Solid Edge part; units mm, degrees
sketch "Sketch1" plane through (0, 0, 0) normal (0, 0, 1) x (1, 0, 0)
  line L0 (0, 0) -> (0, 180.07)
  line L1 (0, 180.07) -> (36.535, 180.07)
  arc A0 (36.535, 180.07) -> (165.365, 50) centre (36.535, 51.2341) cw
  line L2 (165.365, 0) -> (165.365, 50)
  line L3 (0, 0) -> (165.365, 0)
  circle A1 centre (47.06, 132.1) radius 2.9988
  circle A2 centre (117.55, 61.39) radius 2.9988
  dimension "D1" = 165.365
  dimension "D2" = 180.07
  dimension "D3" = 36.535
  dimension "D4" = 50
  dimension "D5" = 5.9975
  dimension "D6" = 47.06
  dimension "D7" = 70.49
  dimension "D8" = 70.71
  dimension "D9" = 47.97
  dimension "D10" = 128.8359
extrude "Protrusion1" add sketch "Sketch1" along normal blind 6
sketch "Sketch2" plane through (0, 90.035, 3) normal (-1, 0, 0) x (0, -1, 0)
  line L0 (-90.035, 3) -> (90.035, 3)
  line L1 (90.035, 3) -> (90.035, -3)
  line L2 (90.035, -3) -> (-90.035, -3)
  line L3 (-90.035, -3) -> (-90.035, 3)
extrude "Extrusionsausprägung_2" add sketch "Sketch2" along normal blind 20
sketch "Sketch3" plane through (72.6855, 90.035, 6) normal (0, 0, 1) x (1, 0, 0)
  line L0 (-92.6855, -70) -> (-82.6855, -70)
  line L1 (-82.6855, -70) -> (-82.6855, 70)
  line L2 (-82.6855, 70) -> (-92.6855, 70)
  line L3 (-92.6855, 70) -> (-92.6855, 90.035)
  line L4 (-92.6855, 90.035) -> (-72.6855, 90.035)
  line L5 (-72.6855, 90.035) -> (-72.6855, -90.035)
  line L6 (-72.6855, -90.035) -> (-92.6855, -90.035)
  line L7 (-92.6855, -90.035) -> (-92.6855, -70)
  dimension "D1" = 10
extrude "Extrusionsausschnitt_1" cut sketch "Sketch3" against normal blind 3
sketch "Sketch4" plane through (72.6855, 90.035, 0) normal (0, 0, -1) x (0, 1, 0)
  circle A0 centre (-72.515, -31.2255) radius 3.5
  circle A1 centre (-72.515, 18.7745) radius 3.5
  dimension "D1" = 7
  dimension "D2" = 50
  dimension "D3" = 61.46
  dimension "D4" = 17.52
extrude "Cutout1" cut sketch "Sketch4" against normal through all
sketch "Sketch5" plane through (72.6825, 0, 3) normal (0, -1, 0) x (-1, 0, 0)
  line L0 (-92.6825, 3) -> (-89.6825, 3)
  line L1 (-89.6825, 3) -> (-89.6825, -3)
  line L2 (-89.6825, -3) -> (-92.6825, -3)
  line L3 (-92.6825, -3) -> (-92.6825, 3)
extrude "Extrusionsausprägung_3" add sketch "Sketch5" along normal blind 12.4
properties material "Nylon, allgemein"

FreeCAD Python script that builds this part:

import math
import FreeCAD as App
import Part
import Sketcher

doc = App.newDocument("Part")
body = doc.addObject("PartDesign::Body", "Body")

# Sketch on XY plane
sketch1 = body.newObject("Sketcher::SketchObject", "Sketch")
sketch1.AttachmentSupport = (doc.getObject("XY_Plane"), [""])
sketch1.MapMode = "FlatFace"
sketch1.addGeometry([
    Part.LineSegment(App.Vector(0, 180.07, 0), App.Vector(0, 0, 0)),  # 0
    Part.LineSegment(App.Vector(0, 0, 0), App.Vector(165.365, 0, 0)),  # 1
    Part.LineSegment(App.Vector(165.365, 0, 0), App.Vector(165.365, 50, 0)),  # 2
    Part.ArcOfCircle(Part.Circle(App.Vector(36.535, 51.2341, 0), App.Vector(0, 0, 1), 128.8359), math.radians(-0.548836), math.radians(90)),  # 3
    Part.LineSegment(App.Vector(36.535, 180.07, 0), App.Vector(0, 180.07, 0)),  # 4
    Part.Circle(App.Vector(117.55, 61.39, 0), App.Vector(0, 0, 1), 2.9988),  # 5
    Part.Circle(App.Vector(47.06, 132.1, 0), App.Vector(0, 0, 1), 2.9988),  # 6
], False)
sketch1.addConstraint([
    Sketcher.Constraint("Coincident", 0, 2, 1, 1),
    Sketcher.Constraint("Coincident", 1, 2, 2, 1),
    Sketcher.Constraint("Coincident", 2, 2, 3, 1),
    Sketcher.Constraint("Tangent", 3, 2, 4, 1),
    Sketcher.Constraint("Coincident", 4, 2, 0, 1),
    Sketcher.Constraint("Vertical", 0),
    Sketcher.Constraint("Horizontal", 1),
    Sketcher.Constraint("Vertical", 2),
    Sketcher.Constraint("Horizontal", 4),
    Sketcher.Constraint("Coincident", 0, 2, -1, 1),
    Sketcher.Constraint("Equal", 5, 6),
    Sketcher.Constraint("DistanceX", 1, 1, 1, 2, 165.365),
    Sketcher.Constraint("DistanceY", 2, 1, 2, 2, 50.0),
    Sketcher.Constraint("Radius", 3, 128.836),
    Sketcher.Constraint("Diameter", 5, 5.9976),
    Sketcher.Constraint("DistanceY", 0, 2, 0, 1, 180.07),
    Sketcher.Constraint("DistanceY", -1, 1, 6, 3, 132.1),
    Sketcher.Constraint("DistanceX", -1, 1, 5, 3, 117.55),
    Sketcher.Constraint("DistanceY", -1, 1, 5, 3, 61.39),
    Sketcher.Constraint("DistanceX", -1, 1, 6, 3, 47.06),
])
pad1 = body.newObject("PartDesign::Pad", "Pad")
pad1.Profile = sketch1
pad1.Length = 6

# Sketch on YZ plane
sketch2 = body.newObject("Sketcher::SketchObject", "Sketch001")
sketch2.AttachmentSupport = (doc.getObject("YZ_Plane"), [""])
sketch2.MapMode = "FlatFace"
sketch2.addGeometry([
    Part.LineSegment(App.Vector(0, 6, 0), App.Vector(180.07, 6, 0)),
    Part.LineSegment(App.Vector(180.07, 6, 0), App.Vector(180.07, 0, 0)),
    Part.LineSegment(App.Vector(180.07, 0, 0), App.Vector(0, 0, 0)),
    Part.LineSegment(App.Vector(0, 0, 0), App.Vector(0, 6, 0)),
], False)
sketch2.addConstraint([
    Sketcher.Constraint("Coincident", 0, 2, 1, 1),
    Sketcher.Constraint("Coincident", 1, 2, 2, 1),
    Sketcher.Constraint("Coincident", 2, 2, 3, 1),
    Sketcher.Constraint("Coincident", 3, 2, 0, 1),
    Sketcher.Constraint("Horizontal", 0),
    Sketcher.Constraint("Vertical", 1),
    Sketcher.Constraint("Horizontal", 2),
    Sketcher.Constraint("Vertical", 3),
    Sketcher.Constraint("Coincident", 2, 2, -1, 1),
    Sketcher.Constraint("DistanceY", 1, 2, 1, 1, 6.0),
    Sketcher.Constraint("DistanceX", 0, 1, 0, 2, 180.07),
])
pad2 = body.newObject("PartDesign::Pad", "Pad001")
pad2.Profile = sketch2
pad2.Length = 20
pad2.Reversed = True

# Sketch on XY plane
sketch3 = body.newObject("Sketcher::SketchObject", "Sketch002")
sketch3.AttachmentSupport = (doc.getObject("XY_Plane"), [""])
sketch3.MapMode = "FlatFace"
sketch3.AttachmentOffset = App.Placement(App.Vector(0, 0, 6), App.Rotation())
sketch3.addGeometry([
    Part.LineSegment(App.Vector(-10, 20.035, 0), App.Vector(-20, 20.035, 0)),  # 0
    Part.LineSegment(App.Vector(-20, 20.035, 0), App.Vector(-20, 0, 0)),  # 1
    Part.LineSegment(App.Vector(-20, 0, 0), App.Vector(0, 0, 0)),  # 2
    Part.LineSegment(App.Vector(0, 0, 0), App.Vector(0, 180.07, 0)),  # 3
    Part.LineSegment(App.Vector(0, 180.07, 0), App.Vector(-20, 180.07, 0)),  # 4
    Part.LineSegment(App.Vector(-20, 180.07, 0), App.Vector(-20, 160.035, 0)),  # 5
    Part.LineSegment(App.Vector(-20, 160.035, 0), App.Vector(-10, 160.035, 0)),  # 6
    Part.LineSegment(App.Vector(-10, 160.035, 0), App.Vector(-10, 20.035, 0)),  # 7
], False)
sketch3.addConstraint([
    Sketcher.Constraint("Coincident", 0, 2, 1, 1),
    Sketcher.Constraint("Coincident", 1, 2, 2, 1),
    Sketcher.Constraint("Coincident", 2, 2, 3, 1),
    Sketcher.Constraint("Coincident", 3, 2, 4, 1),
    Sketcher.Constraint("Coincident", 4, 2, 5, 1),
    Sketcher.Constraint("Coincident", 5, 2, 6, 1),
    Sketcher.Constraint("Coincident", 6, 2, 7, 1),
    Sketcher.Constraint("Coincident", 7, 2, 0, 1),
    Sketcher.Constraint("Horizontal", 0),
    Sketcher.Constraint("Vertical", 1),
    Sketcher.Constraint("Horizontal", 2),
    Sketcher.Constraint("Vertical", 3),
    Sketcher.Constraint("Horizontal", 4),
    Sketcher.Constraint("Vertical", 5),
    Sketcher.Constraint("Horizontal", 6),
    Sketcher.Constraint("Vertical", 7),
    Sketcher.Constraint("Coincident", 2, 2, -1, 1),
    Sketcher.Constraint("Vertical", 1, 2, 4, 2),
    Sketcher.Constraint("Equal", 1, 5),
    Sketcher.Constraint("DistanceX", 0, 2, 0, 1, 10.0),
    Sketcher.Constraint("DistanceX", 2, 1, 2, 2, 20.0),
    Sketcher.Constraint("DistanceY", 7, 2, 7, 1, 140.0),
    Sketcher.Constraint("DistanceY", 3, 1, 3, 2, 180.07),
])
pocket1 = body.newObject("PartDesign::Pocket", "Pocket")
pocket1.Profile = sketch3
pocket1.Length = 3

# Sketch on XY plane
sketch4 = body.newObject("Sketcher::SketchObject", "Sketch003")
sketch4.AttachmentSupport = (doc.getObject("XY_Plane"), [""])
sketch4.MapMode = "FlatFace"
sketch4.addGeometry([
    Part.Circle(App.Vector(41.46, 17.52, 0), App.Vector(0, 0, 1), 3.5),
    Part.Circle(App.Vector(91.46, 17.52, 0), App.Vector(0, 0, 1), 3.5),
], False)
sketch4.addConstraint([
    Sketcher.Constraint("Equal", 0, 1),
    Sketcher.Constraint("Horizontal", 0, 3, 1, 3),
    Sketcher.Constraint("Diameter", 0, 7.0),
    Sketcher.Constraint("DistanceX", 0, 3, 1, 3, 50.0),
    Sketcher.Constraint("DistanceX", -1, 1, 0, 3, 41.46),
    Sketcher.Constraint("DistanceY", -1, 1, 0, 3, 17.52),
])
pocket2 = body.newObject("PartDesign::Pocket", "Pocket001")
pocket2.Profile = sketch4
pocket2.Type = "ThroughAll"
pocket2.Reversed = True

# Sketch on XZ plane
sketch5 = body.newObject("Sketcher::SketchObject", "Sketch004")
sketch5.AttachmentSupport = (doc.getObject("XZ_Plane"), [""])
sketch5.MapMode = "FlatFace"
sketch5.addGeometry([
    Part.LineSegment(App.Vector(162.365, 0, 0), App.Vector(165.365, 0, 0)),
    Part.LineSegment(App.Vector(165.365, 0, 0), App.Vector(165.365, 6, 0)),
    Part.LineSegment(App.Vector(165.365, 6, 0), App.Vector(162.365, 6, 0)),
    Part.LineSegment(App.Vector(162.365, 6, 0), App.Vector(162.365, 0, 0)),
], False)
sketch5.addConstraint([
    Sketcher.Constraint("Coincident", 0, 2, 1, 1),
    Sketcher.Constraint("Coincident", 1, 2, 2, 1),
    Sketcher.Constraint("Coincident", 2, 2, 3, 1),
    Sketcher.Constraint("Coincident", 3, 2, 0, 1),
    Sketcher.Constraint("Horizontal", 0),
    Sketcher.Constraint("Vertical", 1),
    Sketcher.Constraint("Horizontal", 2),
    Sketcher.Constraint("Vertical", 3),
    Sketcher.Constraint("PointOnObject", 0, 2, -1),
    Sketcher.Constraint("DistanceX", 0, 1, 0, 2, 3.0),
    Sketcher.Constraint("DistanceY", 1, 1, 1, 2, 6.0),
    Sketcher.Constraint("DistanceX", -1, 1, 0, 2, 165.365),
])
pad3 = body.newObject("PartDesign::Pad", "Pad002")
pad3.Profile = sketch5
pad3.Length = 12.4

doc.recompute()
